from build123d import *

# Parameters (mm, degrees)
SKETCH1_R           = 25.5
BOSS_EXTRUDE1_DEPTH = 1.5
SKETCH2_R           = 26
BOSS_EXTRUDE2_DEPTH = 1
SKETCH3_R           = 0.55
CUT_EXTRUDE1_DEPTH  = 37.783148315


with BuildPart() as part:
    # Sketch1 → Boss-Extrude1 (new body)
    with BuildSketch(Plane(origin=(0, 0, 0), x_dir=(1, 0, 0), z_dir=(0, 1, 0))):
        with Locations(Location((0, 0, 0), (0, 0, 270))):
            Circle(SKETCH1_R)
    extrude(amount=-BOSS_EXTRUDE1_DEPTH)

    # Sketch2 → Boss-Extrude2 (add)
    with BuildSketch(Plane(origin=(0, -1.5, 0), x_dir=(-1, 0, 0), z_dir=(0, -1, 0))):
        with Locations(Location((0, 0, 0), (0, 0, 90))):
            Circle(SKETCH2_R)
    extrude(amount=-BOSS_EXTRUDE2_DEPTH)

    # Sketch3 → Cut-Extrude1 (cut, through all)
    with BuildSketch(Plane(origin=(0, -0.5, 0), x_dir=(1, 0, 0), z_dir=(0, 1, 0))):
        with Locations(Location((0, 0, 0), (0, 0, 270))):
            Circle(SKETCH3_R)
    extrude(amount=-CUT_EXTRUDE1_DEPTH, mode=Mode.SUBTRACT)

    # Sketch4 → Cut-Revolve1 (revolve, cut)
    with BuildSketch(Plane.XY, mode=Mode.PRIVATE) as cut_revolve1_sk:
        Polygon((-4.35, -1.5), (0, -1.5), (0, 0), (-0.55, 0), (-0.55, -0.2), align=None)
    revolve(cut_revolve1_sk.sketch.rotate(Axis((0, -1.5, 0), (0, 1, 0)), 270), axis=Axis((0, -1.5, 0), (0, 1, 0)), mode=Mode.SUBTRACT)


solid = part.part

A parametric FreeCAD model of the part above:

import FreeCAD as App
import Part
import Sketcher
from FreeCAD import Vector


def add_polygon(sketch, points):
    """Adds a closed chain of lines whose ends are joined by coincident constraints."""
    first, n = sketch.GeometryCount, len(points)
    for a, b in zip(points, points[1:] + points[:1]):
        sketch.addGeometry(Part.LineSegment(App.Vector(*a, 0), App.Vector(*b, 0)), False)
    for i in range(n):
        sketch.addConstraint(Sketcher.Constraint("Coincident", first + i, 2, first + (i + 1) % n, 1))

doc = App.newDocument("Part")
body = doc.addObject("PartDesign::Body", "Body")

# Sketch on XZ plane
sketch1 = doc.addObject("Sketcher::SketchObject", "Sketch")
body.addObject(sketch1)
sketch1.AttachmentSupport = (doc.XZ_Plane, [""])
sketch1.MapMode = "FlatFace"
sketch1.addGeometry(Part.Circle(Vector(0, 0, 0), Vector(0, 0, 1), 26), False)
sketch1.addConstraint(Sketcher.Constraint("Coincident", 0, 3, -1, 1))
sketch1.addConstraint(Sketcher.Constraint("Diameter", 0, 51.0))
pad1 = doc.addObject("PartDesign::Pad", "Pad")
body.addObject(pad1)
pad1.Profile = sketch1
pad1.Length = 1.5

# Sketch on XZ plane
sketch2 = doc.addObject("Sketcher::SketchObject", "Sketch001")
body.addObject(sketch2)
sketch2.AttachmentSupport = (doc.XZ_Plane, [""])
sketch2.MapMode = "FlatFace"
sketch2.AttachmentOffset = App.Placement(Vector(0, 0, 1.5), App.Rotation())
sketch2.addGeometry(Part.Circle(Vector(0, 0, 0), Vector(0, 0, 1), 26), False)
sketch2.addConstraint(Sketcher.Constraint("Coincident", 0, 3, -1, 1))
sketch2.addConstraint(Sketcher.Constraint("Diameter", 0, 52.0))
pad2 = doc.addObject("PartDesign::Pad", "Pad001")
body.addObject(pad2)
pad2.Profile = sketch2
pad2.Length = 1
pad2.Reversed = True

# Sketch on XZ plane
sketch3 = doc.addObject("Sketcher::SketchObject", "Sketch002")
body.addObject(sketch3)
sketch3.AttachmentSupport = (doc.XZ_Plane, [""])
sketch3.MapMode = "FlatFace"
sketch3.AttachmentOffset = App.Placement(Vector(0, 0, 0.5), App.Rotation())
sketch3.addGeometry(Part.Circle(Vector(0, 0, 0), Vector(0, 0, 1), 0.6), False)
sketch3.addConstraint(Sketcher.Constraint("Coincident", 0, 3, -1, 1))
sketch3.addConstraint(Sketcher.Constraint("Diameter", 0, 1.1))
pocket1 = doc.addObject("PartDesign::Pocket", "Pocket")
body.addObject(pocket1)
pocket1.Profile = sketch3
pocket1.Type = "ThroughAll"
pocket1.Reversed = True

# Sketch on XY plane
sketch4 = doc.addObject("Sketcher::SketchObject", "Sketch003")
body.addObject(sketch4)
sketch4.AttachmentSupport = (doc.XY_Plane, [""])
sketch4.MapMode = "FlatFace"
add_polygon(sketch4, [(-4.35, -1.5), (0, -1.5), (0, 0), (-0.55, 0), (-0.55, -0.2)])  # lines 0-4
sketch4.addConstraint(Sketcher.Constraint("Horizontal", 0))
sketch4.addConstraint(Sketcher.Constraint("Vertical", 1))
sketch4.addConstraint(Sketcher.Constraint("Horizontal", 2))
sketch4.addConstraint(Sketcher.Constraint("Vertical", 3))
sketch4.addConstraint(Sketcher.Constraint("Coincident", 1, 2, -1, 1))
sketch4.addConstraint(Sketcher.Constraint("DistanceY", 1, 1, 1, 2, 1.5))
sketch4.addConstraint(Sketcher.Constraint("DistanceY", 3, 2, 3, 1, 0.2))
sketch4.addConstraint(Sketcher.Constraint("DistanceX", 0, 1, 0, 2, 4.35))
sketch4.addConstraint(Sketcher.Constraint("DistanceX", 2, 2, 2, 1, 0.55))
groove = doc.addObject("PartDesign::Groove", "Groove")
body.addObject(groove)
groove.Profile = sketch4
groove.ReferenceAxis = (sketch4, ["V_Axis"])
groove.Angle = 360

doc.recompute()
